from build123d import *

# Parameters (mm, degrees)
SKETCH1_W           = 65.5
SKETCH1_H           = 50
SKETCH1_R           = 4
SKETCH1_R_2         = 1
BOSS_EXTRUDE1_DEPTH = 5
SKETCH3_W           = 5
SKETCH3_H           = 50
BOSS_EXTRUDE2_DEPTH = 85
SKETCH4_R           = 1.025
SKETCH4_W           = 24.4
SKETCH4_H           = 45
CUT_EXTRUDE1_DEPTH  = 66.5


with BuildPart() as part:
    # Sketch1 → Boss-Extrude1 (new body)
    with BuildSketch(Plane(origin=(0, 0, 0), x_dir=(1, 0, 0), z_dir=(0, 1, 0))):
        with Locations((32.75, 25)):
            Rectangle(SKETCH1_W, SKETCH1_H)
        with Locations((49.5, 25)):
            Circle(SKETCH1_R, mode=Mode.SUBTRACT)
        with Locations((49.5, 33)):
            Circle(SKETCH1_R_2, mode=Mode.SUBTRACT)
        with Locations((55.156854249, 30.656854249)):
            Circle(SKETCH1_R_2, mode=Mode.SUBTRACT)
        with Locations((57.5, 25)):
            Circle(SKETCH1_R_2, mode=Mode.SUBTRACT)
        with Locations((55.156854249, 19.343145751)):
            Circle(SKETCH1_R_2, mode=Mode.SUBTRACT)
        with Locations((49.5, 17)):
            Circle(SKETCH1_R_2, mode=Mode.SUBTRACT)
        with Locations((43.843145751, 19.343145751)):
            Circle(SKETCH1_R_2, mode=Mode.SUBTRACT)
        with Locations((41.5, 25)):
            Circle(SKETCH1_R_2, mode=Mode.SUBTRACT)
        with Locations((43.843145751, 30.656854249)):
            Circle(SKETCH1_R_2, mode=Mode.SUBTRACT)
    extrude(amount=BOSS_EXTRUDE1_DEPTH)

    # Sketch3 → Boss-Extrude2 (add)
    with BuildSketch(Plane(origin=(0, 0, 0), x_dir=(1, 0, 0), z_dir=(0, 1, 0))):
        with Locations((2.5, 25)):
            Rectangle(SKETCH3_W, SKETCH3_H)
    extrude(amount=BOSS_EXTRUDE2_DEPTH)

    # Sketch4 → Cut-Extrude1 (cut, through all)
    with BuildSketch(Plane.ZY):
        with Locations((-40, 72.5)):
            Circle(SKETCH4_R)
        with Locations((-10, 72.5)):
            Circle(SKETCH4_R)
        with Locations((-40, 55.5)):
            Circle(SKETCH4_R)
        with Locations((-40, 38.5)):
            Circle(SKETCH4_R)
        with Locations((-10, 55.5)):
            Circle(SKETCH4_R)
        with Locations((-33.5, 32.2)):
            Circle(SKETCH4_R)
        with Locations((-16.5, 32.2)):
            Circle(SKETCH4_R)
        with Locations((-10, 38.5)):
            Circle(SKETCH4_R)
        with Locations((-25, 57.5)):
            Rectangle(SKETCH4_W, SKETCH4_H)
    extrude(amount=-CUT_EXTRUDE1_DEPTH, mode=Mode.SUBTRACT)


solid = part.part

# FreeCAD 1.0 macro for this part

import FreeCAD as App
import Part
import Sketcher
Q = App.Units.Quantity

doc = App.newDocument("Part")
params = doc.addObject("Spreadsheet::Sheet", "Params")
for row, (alias, value) in enumerate([
    ("sketch1_diameter", "2 mm"),
    ("sketch1_diameter2", "8 mm"),
    ("sketch1_height", "50 mm"),
    ("sketch1_width", "65.5 mm"),
    ("pad1_length", "5 mm"),
    ("sketch2_width", "5 mm"),
    ("sketch2_height", "50 mm"),
    ("pad2_length", "85 mm"),
    ("sketch3_diameter", "2.05 mm"),
    ("sketch3_width", "45 mm"),
    ("sketch3_height", "24.4 mm"),
], start=1):
    params.set(f"A{row}", alias)
    params.set(f"B{row}", "=" + value)
    params.setAlias(f"B{row}", alias)

body = doc.addObject("PartDesign::Body", "Body")

sketch1 = body.newObject("Sketcher::SketchObject", "Sketch")
sketch1.AttachmentSupport = (doc.getObject("XZ_Plane"), [""])
sketch1.MapMode = "FlatFace"
sketch1.addGeometry(Part.LineSegment(App.Vector(0, -50, 0), App.Vector(0, 0, 0)), False)
sketch1.addGeometry(Part.LineSegment(App.Vector(0, 0, 0), App.Vector(65.5, 0, 0)), False)
sketch1.addGeometry(Part.LineSegment(App.Vector(65.5, 0, 0), App.Vector(65.5, -50, 0)), False)
sketch1.addGeometry(Part.LineSegment(App.Vector(65.5, -50, 0), App.Vector(0, -50, 0)), False)
sketch1.addGeometry(Part.Circle(App.Vector(43.843146, -19.343146, 0), App.Vector(0, 0, 1), 1), False)
sketch1.addGeometry(Part.Circle(App.Vector(49.5, -17, 0), App.Vector(0, 0, 1), 1), False)
sketch1.addGeometry(Part.Circle(App.Vector(55.156854, -19.343146, 0), App.Vector(0, 0, 1), 1), False)
sketch1.addGeometry(Part.Circle(App.Vector(41.5, -25, 0), App.Vector(0, 0, 1), 1), False)
sketch1.addGeometry(Part.Circle(App.Vector(43.843146, -30.656854, 0), App.Vector(0, 0, 1), 1), False)
sketch1.addGeometry(Part.Circle(App.Vector(49.5, -25, 0), App.Vector(0, 0, 1), 4), False)
sketch1.addGeometry(Part.Circle(App.Vector(57.5, -25, 0), App.Vector(0, 0, 1), 1), False)
sketch1.addGeometry(Part.Circle(App.Vector(49.5, -33, 0), App.Vector(0, 0, 1), 1), False)
sketch1.addGeometry(Part.Circle(App.Vector(55.156854, -30.656854, 0), App.Vector(0, 0, 1), 1), False)
sketch1.addConstraint(Sketcher.Constraint("Coincident", 0, 2, 1, 1))
sketch1.addConstraint(Sketcher.Constraint("Coincident", 1, 2, 2, 1))
sketch1.addConstraint(Sketcher.Constraint("Coincident", 2, 2, 3, 1))
sketch1.addConstraint(Sketcher.Constraint("Coincident", 3, 2, 0, 1))
sketch1.addConstraint(Sketcher.Constraint("Vertical", 0))
sketch1.addConstraint(Sketcher.Constraint("Horizontal", 1))
sketch1.addConstraint(Sketcher.Constraint("Vertical", 2))
sketch1.addConstraint(Sketcher.Constraint("Horizontal", 3))
sketch1.addConstraint(Sketcher.Constraint("Coincident", 0, 2, -1, 1))
sketch1.addConstraint(Sketcher.Constraint("Equal", 4, 5))
sketch1.addConstraint(Sketcher.Constraint("Equal", 5, 6))
sketch1.addConstraint(Sketcher.Constraint("Equal", 6, 7))
sketch1.addConstraint(Sketcher.Constraint("Equal", 7, 8))
sketch1.addConstraint(Sketcher.Constraint("Equal", 8, 10))
sketch1.addConstraint(Sketcher.Constraint("Equal", 10, 11))
sketch1.addConstraint(Sketcher.Constraint("Equal", 11, 12))
sketch1.addConstraint(Sketcher.Constraint("Horizontal", 4, 3, 6, 3))
sketch1.addConstraint(Sketcher.Constraint("Horizontal", 7, 3, 9, 3))
sketch1.addConstraint(Sketcher.Constraint("Horizontal", 9, 3, 10, 3))
sketch1.addConstraint(Sketcher.Constraint("Horizontal", 8, 3, 12, 3))
sketch1.addConstraint(Sketcher.Constraint("Vertical", 4, 3, 8, 3))
sketch1.addConstraint(Sketcher.Constraint("Vertical", 5, 3, 9, 3))
sketch1.addConstraint(Sketcher.Constraint("Vertical", 9, 3, 11, 3))
sketch1.addConstraint(Sketcher.Constraint("Vertical", 6, 3, 12, 3))
sketch1.addConstraint(Sketcher.Constraint("Diameter", 4, Q("2 mm")))
sketch1.addConstraint(Sketcher.Constraint("Diameter", 9, Q("8 mm")))
sketch1.addConstraint(Sketcher.Constraint("DistanceY", 0, 1, 0, 2, Q("50 mm")))
sketch1.addConstraint(Sketcher.Constraint("DistanceX", 1, 1, 1, 2, Q("65.5 mm")))
sketch1.addConstraint(Sketcher.Constraint("DistanceY", 5, 3, -1, 1, Q("17 mm")))
sketch1.addConstraint(Sketcher.Constraint("DistanceY", 7, 3, -1, 1, Q("25 mm")))
sketch1.addConstraint(Sketcher.Constraint("DistanceY", 11, 3, -1, 1, Q("33 mm")))
sketch1.addConstraint(Sketcher.Constraint("DistanceX", 7, 3, 5, 3, Q("8 mm")))
sketch1.addConstraint(Sketcher.Constraint("DistanceX", 9, 3, 10, 3, Q("8 mm")))
sketch1.addConstraint(Sketcher.Constraint("DistanceX", 5, 3, 1, 2, Q("16 mm")))
sketch1.addConstraint(Sketcher.Constraint("DistanceX", 4, 3, 6, 3, Q("11.313708 mm")))
sketch1.addConstraint(Sketcher.Constraint("DistanceY", 8, 3, 4, 3, Q("11.313708 mm")))
sketch1.addConstraint(Sketcher.Constraint("DistanceX", -1, 1, 4, 3, Q("43.843146 mm")))
sketch1.addConstraint(Sketcher.Constraint("DistanceY", 4, 3, -1, 1, Q("19.343146 mm")))
sketch1.setExpression("Constraints[24]", "Params.sketch1_diameter")
sketch1.setExpression("Constraints[25]", "Params.sketch1_diameter2")
sketch1.setExpression("Constraints[26]", "Params.sketch1_height")
sketch1.setExpression("Constraints[27]", "Params.sketch1_width")
pad1 = body.newObject("PartDesign::Pad", "Pad")
pad1.Profile = sketch1
pad1.setExpression("Length", "Params.pad1_length")
pad1.Reversed = True

sketch2 = body.newObject("Sketcher::SketchObject", "Sketch001")
sketch2.AttachmentSupport = (doc.getObject("XZ_Plane"), [""])
sketch2.MapMode = "FlatFace"
sketch2.addGeometry(Part.LineSegment(App.Vector(0, -50, 0), App.Vector(0, 0, 0)), False)
sketch2.addGeometry(Part.LineSegment(App.Vector(0, 0, 0), App.Vector(5, 0, 0)), False)
sketch2.addGeometry(Part.LineSegment(App.Vector(5, 0, 0), App.Vector(5, -50, 0)), False)
sketch2.addGeometry(Part.LineSegment(App.Vector(5, -50, 0), App.Vector(0, -50, 0)), False)
sketch2.addConstraint(Sketcher.Constraint("Coincident", 0, 2, 1, 1))
sketch2.addConstraint(Sketcher.Constraint("Coincident", 1, 2, 2, 1))
sketch2.addConstraint(Sketcher.Constraint("Coincident", 2, 2, 3, 1))
sketch2.addConstraint(Sketcher.Constraint("Coincident", 3, 2, 0, 1))
sketch2.addConstraint(Sketcher.Constraint("Vertical", 0))
sketch2.addConstraint(Sketcher.Constraint("Horizontal", 1))
sketch2.addConstraint(Sketcher.Constraint("Vertical", 2))
sketch2.addConstraint(Sketcher.Constraint("Horizontal", 3))
sketch2.addConstraint(Sketcher.Constraint("Coincident", 0, 2, -1, 1))
sketch2.addConstraint(Sketcher.Constraint("DistanceX", 1, 1, 1, 2, Q("5 mm")))
sketch2.addConstraint(Sketcher.Constraint("DistanceY", 0, 1, 0, 2, Q("50 mm")))
sketch2.setExpression("Constraints[9]", "Params.sketch2_width")
sketch2.setExpression("Constraints[10]", "Params.sketch2_height")
pad2 = body.newObject("PartDesign::Pad", "Pad001")
pad2.Profile = sketch2
pad2.setExpression("Length", "Params.pad2_length")
pad2.Reversed = True

sketch3 = body.newObject("Sketcher::SketchObject", "Sketch002")
sketch3.AttachmentSupport = (doc.getObject("YZ_Plane"), [""])
sketch3.MapMode = "FlatFace"
sketch3.addGeometry(Part.Circle(App.Vector(72.5, -40, 0), App.Vector(0, 0, 1), 1.025), False)
sketch3.addGeometry(Part.Circle(App.Vector(72.5, -10, 0), App.Vector(0, 0, 1), 1.025), False)
sketch3.addGeometry(Part.Circle(App.Vector(55.5, -40, 0), App.Vector(0, 0, 1), 1.025), False)
sketch3.addGeometry(Part.Circle(App.Vector(38.5, -40, 0), App.Vector(0, 0, 1), 1.025), False)
sketch3.addGeometry(Part.Circle(App.Vector(55.5, -10, 0), App.Vector(0, 0, 1), 1.025), False)
sketch3.addGeometry(Part.Circle(App.Vector(32.2, -33.5, 0), App.Vector(0, 0, 1), 1.025), False)
sketch3.addGeometry(Part.Circle(App.Vector(32.2, -16.5, 0), App.Vector(0, 0, 1), 1.025), False)
sketch3.addGeometry(Part.Circle(App.Vector(38.5, -10, 0), App.Vector(0, 0, 1), 1.025), False)
sketch3.addGeometry(Part.LineSegment(App.Vector(80, -37.2, 0), App.Vector(35, -37.2, 0)), False)
sketch3.addGeometry(Part.LineSegment(App.Vector(35, -37.2, 0), App.Vector(35, -12.8, 0)), False)
sketch3.addGeometry(Part.LineSegment(App.Vector(35, -12.8, 0), App.Vector(80, -12.8, 0)), False)
sketch3.addGeometry(Part.LineSegment(App.Vector(80, -12.8, 0), App.Vector(80, -37.2, 0)), False)
sketch3.addConstraint(Sketcher.Constraint("Coincident", 8, 2, 9, 1))
sketch3.addConstraint(Sketcher.Constraint("Coincident", 9, 2, 10, 1))
sketch3.addConstraint(Sketcher.Constraint("Coincident", 10, 2, 11, 1))
sketch3.addConstraint(Sketcher.Constraint("Coincident", 11, 2, 8, 1))
sketch3.addConstraint(Sketcher.Constraint("Horizontal", 8))
sketch3.addConstraint(Sketcher.Constraint("Vertical", 9))
sketch3.addConstraint(Sketcher.Constraint("Horizontal", 10))
sketch3.addConstraint(Sketcher.Constraint("Vertical", 11))
sketch3.addConstraint(Sketcher.Constraint("Equal", 0, 1))
sketch3.addConstraint(Sketcher.Constraint("Equal", 1, 2))
sketch3.addConstraint(Sketcher.Constraint("Equal", 2, 3))
sketch3.addConstraint(Sketcher.Constraint("Equal", 3, 4))
sketch3.addConstraint(Sketcher.Constraint("Equal", 4, 5))
sketch3.addConstraint(Sketcher.Constraint("Equal", 5, 6))
sketch3.addConstraint(Sketcher.Constraint("Equal", 6, 7))
sketch3.addConstraint(Sketcher.Constraint("Horizontal", 0, 3, 2, 3))
sketch3.addConstraint(Sketcher.Constraint("Horizontal", 2, 3, 3, 3))
sketch3.addConstraint(Sketcher.Constraint("Horizontal", 1, 3, 4, 3))
sketch3.addConstraint(Sketcher.Constraint("Horizontal", 4, 3, 7, 3))
sketch3.addConstraint(Sketcher.Constraint("Vertical", 0, 3, 1, 3))
sketch3.addConstraint(Sketcher.Constraint("Vertical", 2, 3, 4, 3))
sketch3.addConstraint(Sketcher.Constraint("Vertical", 5, 3, 6, 3))
sketch3.addConstraint(Sketcher.Constraint("Vertical", 3, 3, 7, 3))
sketch3.addConstraint(Sketcher.Constraint("Diameter", 0, Q("2.05 mm")))
sketch3.addConstraint(Sketcher.Constraint("DistanceX", 8, 2, 8, 1, Q("45 mm")))
sketch3.addConstraint(Sketcher.Constraint("DistanceY", 9, 1, 9, 2, Q("24.4 mm")))
sketch3.addConstraint(Sketcher.Constraint("DistanceY", 0, 3, -1, 1, Q("40 mm")))
sketch3.addConstraint(Sketcher.Constraint("DistanceY", 1, 3, -1, 1, Q("10 mm")))
sketch3.addConstraint(Sketcher.Constraint("DistanceX", -1, 1, 8, 2, Q("35 mm")))
sketch3.addConstraint(Sketcher.Constraint("DistanceX", 2, 3, 0, 3, Q("17 mm")))
sketch3.addConstraint(Sketcher.Constraint("DistanceX", 3, 3, 2, 3, Q("17 mm")))
sketch3.addConstraint(Sketcher.Constraint("DistanceY", 5, 3, 6, 3, Q("17 mm")))
sketch3.addConstraint(Sketcher.Constraint("DistanceX", -1, 1, 0, 3, Q("72.5 mm")))
sketch3.addConstraint(Sketcher.Constraint("DistanceX", -1, 1, 5, 3, Q("32.2 mm")))
sketch3.addConstraint(Sketcher.Constraint("DistanceY", 5, 3, -1, 1, Q("33.5 mm")))
sketch3.addConstraint(Sketcher.Constraint("DistanceY", 8, 2, -1, 1, Q("37.2 mm")))
sketch3.setExpression("Constraints[23]", "Params.sketch3_diameter")
sketch3.setExpression("Constraints[24]", "Params.sketch3_width")
sketch3.setExpression("Constraints[25]", "Params.sketch3_height")
pocket1 = body.newObject("PartDesign::Pocket", "Pocket")
pocket1.Profile = sketch3
pocket1.Type = "ThroughAll"
pocket1.Reversed = True

doc.recompute()
